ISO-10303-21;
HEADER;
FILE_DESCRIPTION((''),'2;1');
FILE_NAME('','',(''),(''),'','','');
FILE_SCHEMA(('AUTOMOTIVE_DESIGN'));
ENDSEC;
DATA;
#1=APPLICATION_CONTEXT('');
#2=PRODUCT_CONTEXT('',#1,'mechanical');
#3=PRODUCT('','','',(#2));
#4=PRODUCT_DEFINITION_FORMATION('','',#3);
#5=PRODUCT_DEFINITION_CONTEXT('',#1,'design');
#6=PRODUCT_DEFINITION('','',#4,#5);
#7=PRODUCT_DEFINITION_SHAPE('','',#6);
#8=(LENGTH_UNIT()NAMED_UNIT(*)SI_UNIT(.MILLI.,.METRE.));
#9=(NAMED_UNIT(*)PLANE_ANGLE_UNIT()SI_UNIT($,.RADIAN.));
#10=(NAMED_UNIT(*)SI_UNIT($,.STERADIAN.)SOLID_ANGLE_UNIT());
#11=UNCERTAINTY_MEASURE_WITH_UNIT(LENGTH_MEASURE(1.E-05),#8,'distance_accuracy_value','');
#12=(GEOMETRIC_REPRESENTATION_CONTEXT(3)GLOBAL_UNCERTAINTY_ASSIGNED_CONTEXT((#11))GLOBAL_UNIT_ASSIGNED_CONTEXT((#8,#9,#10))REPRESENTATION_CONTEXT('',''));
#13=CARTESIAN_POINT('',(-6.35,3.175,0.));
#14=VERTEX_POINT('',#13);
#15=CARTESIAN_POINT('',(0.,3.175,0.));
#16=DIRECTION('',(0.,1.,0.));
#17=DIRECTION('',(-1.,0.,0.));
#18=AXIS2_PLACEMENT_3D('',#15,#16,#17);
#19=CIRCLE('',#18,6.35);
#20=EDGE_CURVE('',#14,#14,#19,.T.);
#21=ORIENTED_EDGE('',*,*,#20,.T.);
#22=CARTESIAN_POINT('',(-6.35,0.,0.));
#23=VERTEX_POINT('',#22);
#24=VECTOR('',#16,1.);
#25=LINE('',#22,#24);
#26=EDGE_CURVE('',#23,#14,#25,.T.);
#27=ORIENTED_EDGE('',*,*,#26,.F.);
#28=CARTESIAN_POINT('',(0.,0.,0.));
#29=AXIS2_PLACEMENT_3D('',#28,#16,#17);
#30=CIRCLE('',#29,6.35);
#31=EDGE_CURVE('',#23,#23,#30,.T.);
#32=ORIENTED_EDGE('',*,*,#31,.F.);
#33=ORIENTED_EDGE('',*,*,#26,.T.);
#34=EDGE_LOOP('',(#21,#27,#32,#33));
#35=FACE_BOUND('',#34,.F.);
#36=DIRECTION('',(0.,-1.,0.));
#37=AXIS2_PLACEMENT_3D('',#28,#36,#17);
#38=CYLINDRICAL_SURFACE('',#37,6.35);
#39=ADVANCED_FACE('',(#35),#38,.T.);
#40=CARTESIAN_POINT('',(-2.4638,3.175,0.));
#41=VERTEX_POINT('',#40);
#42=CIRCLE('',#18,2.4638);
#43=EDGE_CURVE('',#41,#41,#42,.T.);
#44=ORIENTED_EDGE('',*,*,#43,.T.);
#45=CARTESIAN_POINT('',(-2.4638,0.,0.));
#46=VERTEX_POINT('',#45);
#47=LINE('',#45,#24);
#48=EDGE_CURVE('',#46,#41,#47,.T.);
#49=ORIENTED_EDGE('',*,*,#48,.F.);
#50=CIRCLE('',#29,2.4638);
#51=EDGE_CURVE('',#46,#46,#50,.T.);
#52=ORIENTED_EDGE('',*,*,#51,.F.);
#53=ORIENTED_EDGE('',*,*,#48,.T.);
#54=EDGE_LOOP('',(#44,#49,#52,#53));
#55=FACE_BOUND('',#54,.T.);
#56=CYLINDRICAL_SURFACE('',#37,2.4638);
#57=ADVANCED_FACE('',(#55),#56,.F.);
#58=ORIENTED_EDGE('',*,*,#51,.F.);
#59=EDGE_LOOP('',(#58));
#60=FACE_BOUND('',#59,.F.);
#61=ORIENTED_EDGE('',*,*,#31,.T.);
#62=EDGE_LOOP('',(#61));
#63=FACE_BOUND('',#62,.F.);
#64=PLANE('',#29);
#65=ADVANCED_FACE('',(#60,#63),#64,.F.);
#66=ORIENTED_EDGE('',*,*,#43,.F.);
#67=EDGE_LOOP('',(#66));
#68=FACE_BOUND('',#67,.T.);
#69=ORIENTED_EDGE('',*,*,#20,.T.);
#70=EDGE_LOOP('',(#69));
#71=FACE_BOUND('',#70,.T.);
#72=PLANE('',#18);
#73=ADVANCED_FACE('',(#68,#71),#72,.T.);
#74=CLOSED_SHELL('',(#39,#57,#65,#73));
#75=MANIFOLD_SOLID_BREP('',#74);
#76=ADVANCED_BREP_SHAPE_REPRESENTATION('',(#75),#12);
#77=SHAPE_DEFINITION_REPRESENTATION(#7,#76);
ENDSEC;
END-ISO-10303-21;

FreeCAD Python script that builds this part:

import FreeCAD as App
import Part
import Sketcher
Q = App.Units.Quantity

doc = App.newDocument("Part")
body = doc.addObject("PartDesign::Body", "Body")

sketch1 = body.newObject("Sketcher::SketchObject", "Sketch")
sketch1.AttachmentSupport = (doc.getObject("XZ_Plane"), [""])
sketch1.MapMode = "FlatFace"
sketch1.addGeometry([
    Part.Circle(App.Vector(0, 0, 0), App.Vector(0, 0, 1), 6.3),
    Part.Circle(App.Vector(0, 0, 0), App.Vector(0, 0, 1), 2.5),
], False)
sketch1.addConstraint([
    Sketcher.Constraint("Coincident", 0, 3, -1, 1),
    Sketcher.Constraint("Coincident", 1, 3, -1, 1),
    Sketcher.Constraint("Diameter", 0, Q("0.5 in")),
    Sketcher.Constraint("Diameter", 1, Q("0.194 in")),
])
pad1 = body.newObject("PartDesign::Pad", "Pad")
pad1.Profile = sketch1
pad1.Length = Q("0.125 in")
pad1.Reversed = True

doc.recompute()
